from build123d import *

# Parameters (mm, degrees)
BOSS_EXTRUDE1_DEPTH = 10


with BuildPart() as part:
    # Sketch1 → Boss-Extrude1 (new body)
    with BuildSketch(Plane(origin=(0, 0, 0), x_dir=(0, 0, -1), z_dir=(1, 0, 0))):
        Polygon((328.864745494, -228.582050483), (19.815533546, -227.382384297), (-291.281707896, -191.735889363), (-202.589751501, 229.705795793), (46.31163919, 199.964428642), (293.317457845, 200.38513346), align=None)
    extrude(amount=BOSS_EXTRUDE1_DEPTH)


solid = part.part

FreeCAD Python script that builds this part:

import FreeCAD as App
import Part
import Sketcher
from FreeCAD import Vector
Q = App.Units.Quantity

doc = App.newDocument("Part")
params = doc.addObject("Spreadsheet::Sheet", "Params")
for row, (alias, value) in enumerate([
    ("pad1_length", "10 mm"),
], start=1):
    params.set(f"A{row}", alias)
    params.set(f"B{row}", "=" + value)
    params.setAlias(f"B{row}", alias)

body = doc.addObject("PartDesign::Body", "Body")

# Sketch on YZ plane
sketch1 = doc.addObject("Sketcher::SketchObject", "Sketch")
body.addObject(sketch1)
sketch1.AttachmentSupport = (doc.YZ_Plane, [""])
sketch1.MapMode = "FlatFace"
sketch1.addGeometry([
    Part.LineSegment(Vector(-227.382384, -19.815534, 0), Vector(-228.58205, -328.864745, 0)),  # 0
    Part.LineSegment(Vector(-228.58205, -328.864745, 0), Vector(200.385133, -293.317458, 0)),  # 1
    Part.LineSegment(Vector(200.385133, -293.317458, 0), Vector(199.964429, -46.311639, 0)),  # 2
    Part.LineSegment(Vector(199.964429, -46.311639, 0), Vector(229.705796, 202.589752, 0)),  # 3
    Part.LineSegment(Vector(229.705796, 202.589752, 0), Vector(-191.735889, 291.281708, 0)),  # 4
    Part.LineSegment(Vector(-191.735889, 291.281708, 0), Vector(-227.382384, -19.815534, 0)),  # 5
], False)
sketch1.addConstraint([
    Sketcher.Constraint("Coincident", 0, 2, 1, 1),
    Sketcher.Constraint("Coincident", 1, 2, 2, 1),
    Sketcher.Constraint("Coincident", 2, 2, 3, 1),
    Sketcher.Constraint("Coincident", 3, 2, 4, 1),
    Sketcher.Constraint("Coincident", 4, 2, 5, 1),
    Sketcher.Constraint("Coincident", 5, 2, 0, 1),
    Sketcher.Constraint("Distance", 3, Q("250.671999 mm")),
    Sketcher.Constraint("Distance", 0, Q("309.05154 mm")),
    Sketcher.Constraint("DistanceX", 0, 2, -1, 1, Q("228.58205 mm")),
    Sketcher.Constraint("DistanceX", -1, 1, 2, 2, Q("199.964429 mm")),
    Sketcher.Constraint("DistanceY", 2, 2, -1, 1, Q("46.311639 mm")),
    Sketcher.Constraint("DistanceY", -1, 1, 3, 2, Q("202.589752 mm")),
    Sketcher.Constraint("DistanceX", 4, 2, -1, 1, Q("191.735889 mm")),
    Sketcher.Constraint("DistanceY", 1, 2, 2, 2, Q("247.005819 mm")),
    Sketcher.Constraint("DistanceY", 5, 2, 4, 2, Q("311.097241 mm")),
    Sketcher.Constraint("DistanceX", 5, 2, 3, 2, Q("457.08818 mm")),
    Sketcher.Constraint("Distance", 1, Q("430.437515 mm")),
    Sketcher.Constraint("Distance", 4, Q("430.673144 mm")),
])
pad1 = doc.addObject("PartDesign::Pad", "Pad")
body.addObject(pad1)
pad1.Profile = sketch1
pad1.setExpression("Length", "Params.pad1_length")

doc.recompute()
